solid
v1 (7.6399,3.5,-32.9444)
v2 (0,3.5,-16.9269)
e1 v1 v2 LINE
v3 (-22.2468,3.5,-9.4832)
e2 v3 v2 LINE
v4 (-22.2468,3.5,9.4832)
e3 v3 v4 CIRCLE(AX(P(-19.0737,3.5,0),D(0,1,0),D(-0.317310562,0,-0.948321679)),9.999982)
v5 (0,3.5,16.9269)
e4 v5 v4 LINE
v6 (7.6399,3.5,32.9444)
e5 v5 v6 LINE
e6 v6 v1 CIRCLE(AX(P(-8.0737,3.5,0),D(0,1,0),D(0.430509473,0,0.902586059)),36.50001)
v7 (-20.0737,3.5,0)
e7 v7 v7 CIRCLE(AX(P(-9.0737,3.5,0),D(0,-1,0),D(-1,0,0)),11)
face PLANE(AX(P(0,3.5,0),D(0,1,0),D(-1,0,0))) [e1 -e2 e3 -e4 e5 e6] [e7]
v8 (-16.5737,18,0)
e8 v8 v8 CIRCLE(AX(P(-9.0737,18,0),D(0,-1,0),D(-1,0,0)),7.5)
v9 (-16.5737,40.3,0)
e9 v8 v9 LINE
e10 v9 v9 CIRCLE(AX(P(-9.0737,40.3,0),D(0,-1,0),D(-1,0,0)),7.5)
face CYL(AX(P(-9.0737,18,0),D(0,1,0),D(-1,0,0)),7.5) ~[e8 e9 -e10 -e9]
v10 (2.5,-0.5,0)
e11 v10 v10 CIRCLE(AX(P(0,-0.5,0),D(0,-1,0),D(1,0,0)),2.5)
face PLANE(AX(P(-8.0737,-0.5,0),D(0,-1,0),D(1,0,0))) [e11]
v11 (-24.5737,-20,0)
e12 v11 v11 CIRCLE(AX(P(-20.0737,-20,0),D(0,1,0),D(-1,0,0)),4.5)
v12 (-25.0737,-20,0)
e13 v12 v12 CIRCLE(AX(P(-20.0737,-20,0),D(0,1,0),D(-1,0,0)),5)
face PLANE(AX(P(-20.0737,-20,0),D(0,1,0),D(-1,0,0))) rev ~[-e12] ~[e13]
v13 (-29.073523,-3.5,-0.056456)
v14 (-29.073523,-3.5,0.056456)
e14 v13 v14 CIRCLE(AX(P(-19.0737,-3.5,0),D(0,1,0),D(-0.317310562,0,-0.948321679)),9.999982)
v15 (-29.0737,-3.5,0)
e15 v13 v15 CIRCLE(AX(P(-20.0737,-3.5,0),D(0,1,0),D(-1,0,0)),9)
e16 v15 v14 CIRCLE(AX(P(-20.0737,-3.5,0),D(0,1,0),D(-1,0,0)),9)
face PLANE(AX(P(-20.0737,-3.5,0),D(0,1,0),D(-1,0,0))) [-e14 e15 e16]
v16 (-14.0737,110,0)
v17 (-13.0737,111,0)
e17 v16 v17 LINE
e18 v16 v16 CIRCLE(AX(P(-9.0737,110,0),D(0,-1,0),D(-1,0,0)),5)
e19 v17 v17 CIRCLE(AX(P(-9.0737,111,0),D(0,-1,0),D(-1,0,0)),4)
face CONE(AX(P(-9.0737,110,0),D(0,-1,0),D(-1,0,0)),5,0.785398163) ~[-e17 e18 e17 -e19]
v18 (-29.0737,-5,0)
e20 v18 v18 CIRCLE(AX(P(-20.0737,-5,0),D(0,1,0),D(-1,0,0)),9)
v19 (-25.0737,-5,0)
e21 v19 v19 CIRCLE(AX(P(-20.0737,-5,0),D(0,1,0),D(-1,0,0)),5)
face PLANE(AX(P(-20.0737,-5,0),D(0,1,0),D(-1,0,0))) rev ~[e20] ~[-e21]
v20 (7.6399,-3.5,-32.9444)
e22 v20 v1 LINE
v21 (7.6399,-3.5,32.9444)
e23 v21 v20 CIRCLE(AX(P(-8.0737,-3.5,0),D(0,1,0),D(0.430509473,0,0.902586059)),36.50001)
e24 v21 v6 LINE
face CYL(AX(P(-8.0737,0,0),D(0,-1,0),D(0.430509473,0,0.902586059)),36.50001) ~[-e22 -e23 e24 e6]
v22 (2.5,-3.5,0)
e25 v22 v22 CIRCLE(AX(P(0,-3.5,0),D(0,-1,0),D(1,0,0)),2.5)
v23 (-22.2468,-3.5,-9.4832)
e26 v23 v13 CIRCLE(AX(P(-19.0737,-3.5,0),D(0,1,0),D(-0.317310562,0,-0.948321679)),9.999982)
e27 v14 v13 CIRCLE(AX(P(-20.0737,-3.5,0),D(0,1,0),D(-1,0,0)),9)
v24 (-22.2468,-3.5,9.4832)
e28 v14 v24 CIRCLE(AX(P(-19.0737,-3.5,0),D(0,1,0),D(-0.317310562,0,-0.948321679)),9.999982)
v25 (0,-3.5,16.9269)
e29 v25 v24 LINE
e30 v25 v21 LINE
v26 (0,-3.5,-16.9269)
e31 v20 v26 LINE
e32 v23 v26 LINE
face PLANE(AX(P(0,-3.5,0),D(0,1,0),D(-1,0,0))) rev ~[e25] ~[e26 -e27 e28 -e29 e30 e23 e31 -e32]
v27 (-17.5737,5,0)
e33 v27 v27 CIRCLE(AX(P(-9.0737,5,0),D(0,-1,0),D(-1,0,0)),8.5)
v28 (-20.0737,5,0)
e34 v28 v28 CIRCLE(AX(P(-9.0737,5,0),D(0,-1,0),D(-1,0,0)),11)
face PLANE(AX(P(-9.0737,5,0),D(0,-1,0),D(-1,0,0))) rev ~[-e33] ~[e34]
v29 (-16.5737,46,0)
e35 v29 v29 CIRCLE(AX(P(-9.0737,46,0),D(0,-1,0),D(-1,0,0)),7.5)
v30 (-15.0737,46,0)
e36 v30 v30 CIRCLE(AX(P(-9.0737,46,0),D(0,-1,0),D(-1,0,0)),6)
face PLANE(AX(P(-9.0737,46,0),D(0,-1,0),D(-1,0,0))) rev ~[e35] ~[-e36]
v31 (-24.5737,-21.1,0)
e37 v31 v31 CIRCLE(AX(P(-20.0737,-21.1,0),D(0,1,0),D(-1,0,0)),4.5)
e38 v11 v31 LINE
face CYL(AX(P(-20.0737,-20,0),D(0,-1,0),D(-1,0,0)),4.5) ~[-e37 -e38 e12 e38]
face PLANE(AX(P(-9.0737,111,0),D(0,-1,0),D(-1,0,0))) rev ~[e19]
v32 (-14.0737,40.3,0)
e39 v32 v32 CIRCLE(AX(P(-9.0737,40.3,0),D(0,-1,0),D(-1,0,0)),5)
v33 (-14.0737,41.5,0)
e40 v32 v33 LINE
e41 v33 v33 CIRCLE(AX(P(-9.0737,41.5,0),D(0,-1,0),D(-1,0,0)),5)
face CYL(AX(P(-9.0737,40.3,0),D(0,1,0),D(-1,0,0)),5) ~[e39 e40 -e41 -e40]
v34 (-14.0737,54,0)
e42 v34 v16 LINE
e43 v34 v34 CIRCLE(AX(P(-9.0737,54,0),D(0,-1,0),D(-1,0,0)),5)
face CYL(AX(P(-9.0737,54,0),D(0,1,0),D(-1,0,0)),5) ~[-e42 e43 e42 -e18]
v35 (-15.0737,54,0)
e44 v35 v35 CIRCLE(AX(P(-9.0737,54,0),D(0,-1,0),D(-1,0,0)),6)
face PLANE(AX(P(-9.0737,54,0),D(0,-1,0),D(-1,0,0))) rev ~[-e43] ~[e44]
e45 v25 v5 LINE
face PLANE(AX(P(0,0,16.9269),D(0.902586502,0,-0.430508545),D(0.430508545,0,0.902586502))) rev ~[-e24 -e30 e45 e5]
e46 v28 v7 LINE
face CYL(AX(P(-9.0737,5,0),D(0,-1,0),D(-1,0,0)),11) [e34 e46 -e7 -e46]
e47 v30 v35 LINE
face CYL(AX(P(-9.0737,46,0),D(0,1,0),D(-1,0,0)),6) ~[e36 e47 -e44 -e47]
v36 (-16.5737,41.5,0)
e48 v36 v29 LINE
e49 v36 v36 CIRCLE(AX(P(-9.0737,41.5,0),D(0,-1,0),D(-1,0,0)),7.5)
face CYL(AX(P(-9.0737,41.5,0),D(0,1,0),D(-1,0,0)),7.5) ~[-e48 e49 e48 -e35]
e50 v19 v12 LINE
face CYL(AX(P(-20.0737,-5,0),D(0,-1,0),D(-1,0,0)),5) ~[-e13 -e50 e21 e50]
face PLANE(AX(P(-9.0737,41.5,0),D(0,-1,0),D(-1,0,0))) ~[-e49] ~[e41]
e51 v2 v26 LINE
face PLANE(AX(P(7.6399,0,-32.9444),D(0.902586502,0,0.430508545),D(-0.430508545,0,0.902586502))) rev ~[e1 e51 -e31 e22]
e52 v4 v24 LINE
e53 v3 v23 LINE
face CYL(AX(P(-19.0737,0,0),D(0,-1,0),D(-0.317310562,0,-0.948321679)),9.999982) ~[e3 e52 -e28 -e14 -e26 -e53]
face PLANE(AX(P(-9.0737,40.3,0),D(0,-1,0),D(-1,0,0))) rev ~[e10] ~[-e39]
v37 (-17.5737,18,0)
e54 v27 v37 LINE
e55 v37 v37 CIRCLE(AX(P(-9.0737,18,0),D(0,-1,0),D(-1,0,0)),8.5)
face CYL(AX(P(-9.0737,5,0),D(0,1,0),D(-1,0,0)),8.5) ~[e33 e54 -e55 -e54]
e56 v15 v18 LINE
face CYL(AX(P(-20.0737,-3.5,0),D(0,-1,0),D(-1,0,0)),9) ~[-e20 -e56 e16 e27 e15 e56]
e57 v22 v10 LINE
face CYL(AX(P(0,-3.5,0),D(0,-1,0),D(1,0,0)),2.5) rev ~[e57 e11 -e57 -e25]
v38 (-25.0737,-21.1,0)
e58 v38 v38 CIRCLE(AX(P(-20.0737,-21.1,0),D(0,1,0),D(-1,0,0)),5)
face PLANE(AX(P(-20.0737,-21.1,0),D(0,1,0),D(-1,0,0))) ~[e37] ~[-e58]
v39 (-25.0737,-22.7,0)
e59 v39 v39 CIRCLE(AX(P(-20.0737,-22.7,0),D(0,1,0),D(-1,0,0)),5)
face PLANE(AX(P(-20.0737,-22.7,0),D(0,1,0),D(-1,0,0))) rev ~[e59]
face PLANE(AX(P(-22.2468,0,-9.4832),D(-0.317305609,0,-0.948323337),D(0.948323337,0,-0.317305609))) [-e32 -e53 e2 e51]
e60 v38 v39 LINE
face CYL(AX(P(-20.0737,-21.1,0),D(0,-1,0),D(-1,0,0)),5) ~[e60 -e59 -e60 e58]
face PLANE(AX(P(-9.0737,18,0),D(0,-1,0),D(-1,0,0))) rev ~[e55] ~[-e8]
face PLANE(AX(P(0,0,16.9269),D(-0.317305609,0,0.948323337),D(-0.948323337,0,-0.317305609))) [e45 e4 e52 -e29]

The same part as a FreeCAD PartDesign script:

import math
import FreeCAD as App
import Part
import Sketcher
Q = App.Units.Quantity


def edges_at(feature, points):
    """Names of the edges that pass closest to the given points."""
    edges = feature.Shape.Edges
    near = lambda p: min(range(len(edges)), key=lambda i: edges[i].distToShape(Part.Vertex(*p))[0])
    return sorted({f"Edge{near(p) + 1}" for p in points})


def add_polygon(sketch, points):
    """Adds a closed chain of lines whose ends are joined by coincident constraints."""
    first, n = sketch.GeometryCount, len(points)
    for a, b in zip(points, points[1:] + points[:1]):
        sketch.addGeometry(Part.LineSegment(App.Vector(*a, 0), App.Vector(*b, 0)), False)
    for i in range(n):
        sketch.addConstraint(Sketcher.Constraint("Coincident", first + i, 2, first + (i + 1) % n, 1))

doc = App.newDocument("Part")
body = doc.addObject("PartDesign::Body", "Body")

sketch1 = body.newObject("Sketcher::SketchObject", "Sketch")
sketch1.AttachmentSupport = (doc.getObject("XZ_Plane"), [""])
sketch1.MapMode = "FlatFace"
sketch1.addGeometry([
    Part.LineSegment(App.Vector(-22, 9, 0), App.Vector(0, 17, 0)),
    Part.LineSegment(App.Vector(0, 17, 0), App.Vector(8, 33, 0)),
    Part.ArcOfCircle(Part.Circle(App.Vector(-8, 0, 0), App.Vector(0, 0, 1), 37), math.radians(-65), math.radians(65)),
    Part.LineSegment(App.Vector(8, -33, 0), App.Vector(0, -17, 0)),
    Part.LineSegment(App.Vector(0, -17, 0), App.Vector(-22, -9, 0)),
    Part.ArcOfCircle(Part.Circle(App.Vector(-19, 0, 0), App.Vector(0, 0, 1), 10), math.radians(109), math.radians(251)),
], False)
sketch1.addConstraint([
    Sketcher.Constraint("Coincident", 0, 2, 1, 1),
    Sketcher.Constraint("Coincident", 1, 2, 2, 2),
    Sketcher.Constraint("Coincident", 2, 1, 3, 1),
    Sketcher.Constraint("Coincident", 3, 2, 4, 1),
    Sketcher.Constraint("Tangent", 4, 2, 5, 2),
    Sketcher.Constraint("Tangent", 5, 1, 0, 1),
    Sketcher.Constraint("Symmetric", 0, 2, 3, 2, -1, 1),
    Sketcher.Constraint("Symmetric", 1, 2, 2, 1, -1),
    Sketcher.Constraint("Symmetric", 4, 2, 5, 1, -1),
    Sketcher.Constraint("Radius", 5, 10.0),
    Sketcher.Constraint("Radius", 2, 36.5),
    Sketcher.Constraint("DistanceX", 5, 3, 2, 3, 11.0),
    Sketcher.Constraint("Angle", 0, Q("18.5 deg")),
    Sketcher.Constraint("Angle", 1, Q("64.5002 deg")),
    Sketcher.Constraint("DistanceX", -1, 1, 1, 2, 7.64),
])
pad1 = body.newObject("PartDesign::Pad", "Pad")
pad1.Profile = sketch1
pad1.Length = 7
pad1.Midplane = True

sketch2 = body.newObject("Sketcher::SketchObject", "Sketch001")
sketch2.AttachmentSupport = (doc.getObject("XY_Plane"), [""])
sketch2.MapMode = "FlatFace"
add_polygon(sketch2, [(-20.1, -3.5), (-29.1, -3.5), (-29.1, -5), (-25.1, -5), (-25.1, -20), (-24.6, -20), (-24.6, -21.1), (-25.1, -21.1), (-25.1, -22.7), (-20.1, -22.7)])
sketch2.addGeometry(Part.LineSegment(App.Vector(-20.1, -22.7, 0), App.Vector(-20.1, -3.5, 0)), True)
sketch2.addConstraint([
    Sketcher.Constraint("Horizontal", 0),
    Sketcher.Constraint("Vertical", 1),
    Sketcher.Constraint("Horizontal", 2),
    Sketcher.Constraint("Vertical", 3),
    Sketcher.Constraint("Horizontal", 4),
    Sketcher.Constraint("Vertical", 5),
    Sketcher.Constraint("Horizontal", 6),
    Sketcher.Constraint("Vertical", 7),
    Sketcher.Constraint("Horizontal", 8),
    Sketcher.Constraint("Vertical", 9),
    Sketcher.Constraint("Vertical", 10),
    Sketcher.Constraint("Coincident", 10, 1, 8, 2),
    Sketcher.Constraint("Horizontal", 0, 2, 10, 2),
    Sketcher.Constraint("Vertical", 3, 2, 6, 2),
    Sketcher.Constraint("DistanceX", 0, 2, 0, 1, 9.0),
    Sketcher.Constraint("DistanceY", 3, 2, 3, 1, 15.0),
    Sketcher.Constraint("DistanceY", 1, 2, 1, 1, 1.5),
    Sketcher.Constraint("DistanceY", 5, 2, 5, 1, 1.1),
    Sketcher.Constraint("DistanceY", 7, 2, 3, 2, 2.7),
    Sketcher.Constraint("DistanceX", 2, 1, 2, 2, 4.0),
    Sketcher.Constraint("DistanceX", 4, 1, 4, 2, 0.5),
    Sketcher.Constraint("DistanceY", 1, 2, -1, 1, 5.0),
    Sketcher.Constraint("DistanceX", 0, 2, -1, 1, 29.0737),
])
revolution = body.newObject("PartDesign::Revolution", "Revolution")
revolution.Profile = sketch2
revolution.ReferenceAxis = (sketch2, ["Axis0"])
revolution.Angle = 360

sketch3 = body.newObject("Sketcher::SketchObject", "Sketch002")
sketch3.AttachmentSupport = (doc.getObject("XY_Plane"), [""])
sketch3.MapMode = "FlatFace"
add_polygon(sketch3, [(-20.1, 3.5), (-9.1, 3.5), (-9.1, 111), (-14.1, 111), (-14.1, 54), (-15.1, 54), (-15.1, 46), (-16.6, 46), (-16.6, 41.5), (-14.1, 41.5), (-14.1, 40.3), (-16.6, 40.3), (-16.6, 18), (-17.6, 18), (-17.6, 5), (-20.1, 5)])
sketch3.addGeometry(Part.LineSegment(App.Vector(-9.1, 111, 0), App.Vector(-9.1, 3.5, 0)), True)
sketch3.addConstraint([
    Sketcher.Constraint("Horizontal", 0),
    Sketcher.Constraint("Vertical", 1),
    Sketcher.Constraint("Horizontal", 2),
    Sketcher.Constraint("Vertical", 3),
    Sketcher.Constraint("Horizontal", 4),
    Sketcher.Constraint("Vertical", 5),
    Sketcher.Constraint("Horizontal", 6),
    Sketcher.Constraint("Vertical", 7),
    Sketcher.Constraint("Horizontal", 8),
    Sketcher.Constraint("Vertical", 9),
    Sketcher.Constraint("Horizontal", 10),
    Sketcher.Constraint("Vertical", 11),
    Sketcher.Constraint("Horizontal", 12),
    Sketcher.Constraint("Vertical", 13),
    Sketcher.Constraint("Horizontal", 14),
    Sketcher.Constraint("Vertical", 15),
    Sketcher.Constraint("Vertical", 16),
    Sketcher.Constraint("Coincident", 16, 1, 1, 2),
    Sketcher.Constraint("Horizontal", 15, 2, 16, 2),
    Sketcher.Constraint("Vertical", 3, 2, 8, 2),
    Sketcher.Constraint("Vertical", 7, 2, 10, 2),
    Sketcher.Constraint("Equal", 4, 12),
    Sketcher.Constraint("Equal", 10, 14),
    Sketcher.Constraint("Equal", 6, 15),
    Sketcher.Constraint("DistanceY", 3, 2, 3, 1, 57.0),
    Sketcher.Constraint("DistanceY", 5, 2, 5, 1, 8.0),
    Sketcher.Constraint("DistanceY", 13, 2, 13, 1, 13.0),
    Sketcher.Constraint("DistanceX", 6, 2, 6, 1, 1.5),
    Sketcher.Constraint("DistanceY", 7, 2, 7, 1, 4.5),
    Sketcher.Constraint("DistanceY", 9, 2, 9, 1, 1.2),
    Sketcher.Constraint("DistanceX", 0, 1, 0, 2, 11.0),
    Sketcher.Constraint("DistanceX", 2, 2, 2, 1, 5.0),
    Sketcher.Constraint("DistanceY", 1, 1, 1, 2, 107.5),
    Sketcher.Constraint("DistanceY", -1, 1, 1, 2, 111.0),
    Sketcher.Constraint("DistanceX", 0, 2, -1, 1, 9.0737),
])
revolution2 = body.newObject("PartDesign::Revolution", "Revolution001")
revolution2.Profile = sketch3
revolution2.ReferenceAxis = (sketch3, ["Axis0"])
revolution2.Angle = 360
doc.recompute()

chamfer = body.newObject("PartDesign::Chamfer", "Chamfer")
chamfer.Base = (revolution2, edges_at(revolution2, [(-4.074, 111, 0)]))
chamfer.Size = 1

sketch4 = body.newObject("Sketcher::SketchObject", "Sketch003")
sketch4.AttachmentSupport = (doc.getObject("XZ_Plane"), [""])
sketch4.MapMode = "FlatFace"
sketch4.AttachmentOffset = App.Placement(App.Vector(0, 0, 3.5), App.Rotation())
sketch4.addGeometry(Part.Circle(App.Vector(0, 0, 0), App.Vector(0, 0, 1), 2.5), False)
sketch4.addConstraint([
    Sketcher.Constraint("Coincident", 0, 3, -1, 1),
    Sketcher.Constraint("Diameter", 0, 5.0),
])
pocket1 = body.newObject("PartDesign::Pocket", "Pocket")
pocket1.Profile = sketch4
pocket1.Length = 3

doc.recompute()
